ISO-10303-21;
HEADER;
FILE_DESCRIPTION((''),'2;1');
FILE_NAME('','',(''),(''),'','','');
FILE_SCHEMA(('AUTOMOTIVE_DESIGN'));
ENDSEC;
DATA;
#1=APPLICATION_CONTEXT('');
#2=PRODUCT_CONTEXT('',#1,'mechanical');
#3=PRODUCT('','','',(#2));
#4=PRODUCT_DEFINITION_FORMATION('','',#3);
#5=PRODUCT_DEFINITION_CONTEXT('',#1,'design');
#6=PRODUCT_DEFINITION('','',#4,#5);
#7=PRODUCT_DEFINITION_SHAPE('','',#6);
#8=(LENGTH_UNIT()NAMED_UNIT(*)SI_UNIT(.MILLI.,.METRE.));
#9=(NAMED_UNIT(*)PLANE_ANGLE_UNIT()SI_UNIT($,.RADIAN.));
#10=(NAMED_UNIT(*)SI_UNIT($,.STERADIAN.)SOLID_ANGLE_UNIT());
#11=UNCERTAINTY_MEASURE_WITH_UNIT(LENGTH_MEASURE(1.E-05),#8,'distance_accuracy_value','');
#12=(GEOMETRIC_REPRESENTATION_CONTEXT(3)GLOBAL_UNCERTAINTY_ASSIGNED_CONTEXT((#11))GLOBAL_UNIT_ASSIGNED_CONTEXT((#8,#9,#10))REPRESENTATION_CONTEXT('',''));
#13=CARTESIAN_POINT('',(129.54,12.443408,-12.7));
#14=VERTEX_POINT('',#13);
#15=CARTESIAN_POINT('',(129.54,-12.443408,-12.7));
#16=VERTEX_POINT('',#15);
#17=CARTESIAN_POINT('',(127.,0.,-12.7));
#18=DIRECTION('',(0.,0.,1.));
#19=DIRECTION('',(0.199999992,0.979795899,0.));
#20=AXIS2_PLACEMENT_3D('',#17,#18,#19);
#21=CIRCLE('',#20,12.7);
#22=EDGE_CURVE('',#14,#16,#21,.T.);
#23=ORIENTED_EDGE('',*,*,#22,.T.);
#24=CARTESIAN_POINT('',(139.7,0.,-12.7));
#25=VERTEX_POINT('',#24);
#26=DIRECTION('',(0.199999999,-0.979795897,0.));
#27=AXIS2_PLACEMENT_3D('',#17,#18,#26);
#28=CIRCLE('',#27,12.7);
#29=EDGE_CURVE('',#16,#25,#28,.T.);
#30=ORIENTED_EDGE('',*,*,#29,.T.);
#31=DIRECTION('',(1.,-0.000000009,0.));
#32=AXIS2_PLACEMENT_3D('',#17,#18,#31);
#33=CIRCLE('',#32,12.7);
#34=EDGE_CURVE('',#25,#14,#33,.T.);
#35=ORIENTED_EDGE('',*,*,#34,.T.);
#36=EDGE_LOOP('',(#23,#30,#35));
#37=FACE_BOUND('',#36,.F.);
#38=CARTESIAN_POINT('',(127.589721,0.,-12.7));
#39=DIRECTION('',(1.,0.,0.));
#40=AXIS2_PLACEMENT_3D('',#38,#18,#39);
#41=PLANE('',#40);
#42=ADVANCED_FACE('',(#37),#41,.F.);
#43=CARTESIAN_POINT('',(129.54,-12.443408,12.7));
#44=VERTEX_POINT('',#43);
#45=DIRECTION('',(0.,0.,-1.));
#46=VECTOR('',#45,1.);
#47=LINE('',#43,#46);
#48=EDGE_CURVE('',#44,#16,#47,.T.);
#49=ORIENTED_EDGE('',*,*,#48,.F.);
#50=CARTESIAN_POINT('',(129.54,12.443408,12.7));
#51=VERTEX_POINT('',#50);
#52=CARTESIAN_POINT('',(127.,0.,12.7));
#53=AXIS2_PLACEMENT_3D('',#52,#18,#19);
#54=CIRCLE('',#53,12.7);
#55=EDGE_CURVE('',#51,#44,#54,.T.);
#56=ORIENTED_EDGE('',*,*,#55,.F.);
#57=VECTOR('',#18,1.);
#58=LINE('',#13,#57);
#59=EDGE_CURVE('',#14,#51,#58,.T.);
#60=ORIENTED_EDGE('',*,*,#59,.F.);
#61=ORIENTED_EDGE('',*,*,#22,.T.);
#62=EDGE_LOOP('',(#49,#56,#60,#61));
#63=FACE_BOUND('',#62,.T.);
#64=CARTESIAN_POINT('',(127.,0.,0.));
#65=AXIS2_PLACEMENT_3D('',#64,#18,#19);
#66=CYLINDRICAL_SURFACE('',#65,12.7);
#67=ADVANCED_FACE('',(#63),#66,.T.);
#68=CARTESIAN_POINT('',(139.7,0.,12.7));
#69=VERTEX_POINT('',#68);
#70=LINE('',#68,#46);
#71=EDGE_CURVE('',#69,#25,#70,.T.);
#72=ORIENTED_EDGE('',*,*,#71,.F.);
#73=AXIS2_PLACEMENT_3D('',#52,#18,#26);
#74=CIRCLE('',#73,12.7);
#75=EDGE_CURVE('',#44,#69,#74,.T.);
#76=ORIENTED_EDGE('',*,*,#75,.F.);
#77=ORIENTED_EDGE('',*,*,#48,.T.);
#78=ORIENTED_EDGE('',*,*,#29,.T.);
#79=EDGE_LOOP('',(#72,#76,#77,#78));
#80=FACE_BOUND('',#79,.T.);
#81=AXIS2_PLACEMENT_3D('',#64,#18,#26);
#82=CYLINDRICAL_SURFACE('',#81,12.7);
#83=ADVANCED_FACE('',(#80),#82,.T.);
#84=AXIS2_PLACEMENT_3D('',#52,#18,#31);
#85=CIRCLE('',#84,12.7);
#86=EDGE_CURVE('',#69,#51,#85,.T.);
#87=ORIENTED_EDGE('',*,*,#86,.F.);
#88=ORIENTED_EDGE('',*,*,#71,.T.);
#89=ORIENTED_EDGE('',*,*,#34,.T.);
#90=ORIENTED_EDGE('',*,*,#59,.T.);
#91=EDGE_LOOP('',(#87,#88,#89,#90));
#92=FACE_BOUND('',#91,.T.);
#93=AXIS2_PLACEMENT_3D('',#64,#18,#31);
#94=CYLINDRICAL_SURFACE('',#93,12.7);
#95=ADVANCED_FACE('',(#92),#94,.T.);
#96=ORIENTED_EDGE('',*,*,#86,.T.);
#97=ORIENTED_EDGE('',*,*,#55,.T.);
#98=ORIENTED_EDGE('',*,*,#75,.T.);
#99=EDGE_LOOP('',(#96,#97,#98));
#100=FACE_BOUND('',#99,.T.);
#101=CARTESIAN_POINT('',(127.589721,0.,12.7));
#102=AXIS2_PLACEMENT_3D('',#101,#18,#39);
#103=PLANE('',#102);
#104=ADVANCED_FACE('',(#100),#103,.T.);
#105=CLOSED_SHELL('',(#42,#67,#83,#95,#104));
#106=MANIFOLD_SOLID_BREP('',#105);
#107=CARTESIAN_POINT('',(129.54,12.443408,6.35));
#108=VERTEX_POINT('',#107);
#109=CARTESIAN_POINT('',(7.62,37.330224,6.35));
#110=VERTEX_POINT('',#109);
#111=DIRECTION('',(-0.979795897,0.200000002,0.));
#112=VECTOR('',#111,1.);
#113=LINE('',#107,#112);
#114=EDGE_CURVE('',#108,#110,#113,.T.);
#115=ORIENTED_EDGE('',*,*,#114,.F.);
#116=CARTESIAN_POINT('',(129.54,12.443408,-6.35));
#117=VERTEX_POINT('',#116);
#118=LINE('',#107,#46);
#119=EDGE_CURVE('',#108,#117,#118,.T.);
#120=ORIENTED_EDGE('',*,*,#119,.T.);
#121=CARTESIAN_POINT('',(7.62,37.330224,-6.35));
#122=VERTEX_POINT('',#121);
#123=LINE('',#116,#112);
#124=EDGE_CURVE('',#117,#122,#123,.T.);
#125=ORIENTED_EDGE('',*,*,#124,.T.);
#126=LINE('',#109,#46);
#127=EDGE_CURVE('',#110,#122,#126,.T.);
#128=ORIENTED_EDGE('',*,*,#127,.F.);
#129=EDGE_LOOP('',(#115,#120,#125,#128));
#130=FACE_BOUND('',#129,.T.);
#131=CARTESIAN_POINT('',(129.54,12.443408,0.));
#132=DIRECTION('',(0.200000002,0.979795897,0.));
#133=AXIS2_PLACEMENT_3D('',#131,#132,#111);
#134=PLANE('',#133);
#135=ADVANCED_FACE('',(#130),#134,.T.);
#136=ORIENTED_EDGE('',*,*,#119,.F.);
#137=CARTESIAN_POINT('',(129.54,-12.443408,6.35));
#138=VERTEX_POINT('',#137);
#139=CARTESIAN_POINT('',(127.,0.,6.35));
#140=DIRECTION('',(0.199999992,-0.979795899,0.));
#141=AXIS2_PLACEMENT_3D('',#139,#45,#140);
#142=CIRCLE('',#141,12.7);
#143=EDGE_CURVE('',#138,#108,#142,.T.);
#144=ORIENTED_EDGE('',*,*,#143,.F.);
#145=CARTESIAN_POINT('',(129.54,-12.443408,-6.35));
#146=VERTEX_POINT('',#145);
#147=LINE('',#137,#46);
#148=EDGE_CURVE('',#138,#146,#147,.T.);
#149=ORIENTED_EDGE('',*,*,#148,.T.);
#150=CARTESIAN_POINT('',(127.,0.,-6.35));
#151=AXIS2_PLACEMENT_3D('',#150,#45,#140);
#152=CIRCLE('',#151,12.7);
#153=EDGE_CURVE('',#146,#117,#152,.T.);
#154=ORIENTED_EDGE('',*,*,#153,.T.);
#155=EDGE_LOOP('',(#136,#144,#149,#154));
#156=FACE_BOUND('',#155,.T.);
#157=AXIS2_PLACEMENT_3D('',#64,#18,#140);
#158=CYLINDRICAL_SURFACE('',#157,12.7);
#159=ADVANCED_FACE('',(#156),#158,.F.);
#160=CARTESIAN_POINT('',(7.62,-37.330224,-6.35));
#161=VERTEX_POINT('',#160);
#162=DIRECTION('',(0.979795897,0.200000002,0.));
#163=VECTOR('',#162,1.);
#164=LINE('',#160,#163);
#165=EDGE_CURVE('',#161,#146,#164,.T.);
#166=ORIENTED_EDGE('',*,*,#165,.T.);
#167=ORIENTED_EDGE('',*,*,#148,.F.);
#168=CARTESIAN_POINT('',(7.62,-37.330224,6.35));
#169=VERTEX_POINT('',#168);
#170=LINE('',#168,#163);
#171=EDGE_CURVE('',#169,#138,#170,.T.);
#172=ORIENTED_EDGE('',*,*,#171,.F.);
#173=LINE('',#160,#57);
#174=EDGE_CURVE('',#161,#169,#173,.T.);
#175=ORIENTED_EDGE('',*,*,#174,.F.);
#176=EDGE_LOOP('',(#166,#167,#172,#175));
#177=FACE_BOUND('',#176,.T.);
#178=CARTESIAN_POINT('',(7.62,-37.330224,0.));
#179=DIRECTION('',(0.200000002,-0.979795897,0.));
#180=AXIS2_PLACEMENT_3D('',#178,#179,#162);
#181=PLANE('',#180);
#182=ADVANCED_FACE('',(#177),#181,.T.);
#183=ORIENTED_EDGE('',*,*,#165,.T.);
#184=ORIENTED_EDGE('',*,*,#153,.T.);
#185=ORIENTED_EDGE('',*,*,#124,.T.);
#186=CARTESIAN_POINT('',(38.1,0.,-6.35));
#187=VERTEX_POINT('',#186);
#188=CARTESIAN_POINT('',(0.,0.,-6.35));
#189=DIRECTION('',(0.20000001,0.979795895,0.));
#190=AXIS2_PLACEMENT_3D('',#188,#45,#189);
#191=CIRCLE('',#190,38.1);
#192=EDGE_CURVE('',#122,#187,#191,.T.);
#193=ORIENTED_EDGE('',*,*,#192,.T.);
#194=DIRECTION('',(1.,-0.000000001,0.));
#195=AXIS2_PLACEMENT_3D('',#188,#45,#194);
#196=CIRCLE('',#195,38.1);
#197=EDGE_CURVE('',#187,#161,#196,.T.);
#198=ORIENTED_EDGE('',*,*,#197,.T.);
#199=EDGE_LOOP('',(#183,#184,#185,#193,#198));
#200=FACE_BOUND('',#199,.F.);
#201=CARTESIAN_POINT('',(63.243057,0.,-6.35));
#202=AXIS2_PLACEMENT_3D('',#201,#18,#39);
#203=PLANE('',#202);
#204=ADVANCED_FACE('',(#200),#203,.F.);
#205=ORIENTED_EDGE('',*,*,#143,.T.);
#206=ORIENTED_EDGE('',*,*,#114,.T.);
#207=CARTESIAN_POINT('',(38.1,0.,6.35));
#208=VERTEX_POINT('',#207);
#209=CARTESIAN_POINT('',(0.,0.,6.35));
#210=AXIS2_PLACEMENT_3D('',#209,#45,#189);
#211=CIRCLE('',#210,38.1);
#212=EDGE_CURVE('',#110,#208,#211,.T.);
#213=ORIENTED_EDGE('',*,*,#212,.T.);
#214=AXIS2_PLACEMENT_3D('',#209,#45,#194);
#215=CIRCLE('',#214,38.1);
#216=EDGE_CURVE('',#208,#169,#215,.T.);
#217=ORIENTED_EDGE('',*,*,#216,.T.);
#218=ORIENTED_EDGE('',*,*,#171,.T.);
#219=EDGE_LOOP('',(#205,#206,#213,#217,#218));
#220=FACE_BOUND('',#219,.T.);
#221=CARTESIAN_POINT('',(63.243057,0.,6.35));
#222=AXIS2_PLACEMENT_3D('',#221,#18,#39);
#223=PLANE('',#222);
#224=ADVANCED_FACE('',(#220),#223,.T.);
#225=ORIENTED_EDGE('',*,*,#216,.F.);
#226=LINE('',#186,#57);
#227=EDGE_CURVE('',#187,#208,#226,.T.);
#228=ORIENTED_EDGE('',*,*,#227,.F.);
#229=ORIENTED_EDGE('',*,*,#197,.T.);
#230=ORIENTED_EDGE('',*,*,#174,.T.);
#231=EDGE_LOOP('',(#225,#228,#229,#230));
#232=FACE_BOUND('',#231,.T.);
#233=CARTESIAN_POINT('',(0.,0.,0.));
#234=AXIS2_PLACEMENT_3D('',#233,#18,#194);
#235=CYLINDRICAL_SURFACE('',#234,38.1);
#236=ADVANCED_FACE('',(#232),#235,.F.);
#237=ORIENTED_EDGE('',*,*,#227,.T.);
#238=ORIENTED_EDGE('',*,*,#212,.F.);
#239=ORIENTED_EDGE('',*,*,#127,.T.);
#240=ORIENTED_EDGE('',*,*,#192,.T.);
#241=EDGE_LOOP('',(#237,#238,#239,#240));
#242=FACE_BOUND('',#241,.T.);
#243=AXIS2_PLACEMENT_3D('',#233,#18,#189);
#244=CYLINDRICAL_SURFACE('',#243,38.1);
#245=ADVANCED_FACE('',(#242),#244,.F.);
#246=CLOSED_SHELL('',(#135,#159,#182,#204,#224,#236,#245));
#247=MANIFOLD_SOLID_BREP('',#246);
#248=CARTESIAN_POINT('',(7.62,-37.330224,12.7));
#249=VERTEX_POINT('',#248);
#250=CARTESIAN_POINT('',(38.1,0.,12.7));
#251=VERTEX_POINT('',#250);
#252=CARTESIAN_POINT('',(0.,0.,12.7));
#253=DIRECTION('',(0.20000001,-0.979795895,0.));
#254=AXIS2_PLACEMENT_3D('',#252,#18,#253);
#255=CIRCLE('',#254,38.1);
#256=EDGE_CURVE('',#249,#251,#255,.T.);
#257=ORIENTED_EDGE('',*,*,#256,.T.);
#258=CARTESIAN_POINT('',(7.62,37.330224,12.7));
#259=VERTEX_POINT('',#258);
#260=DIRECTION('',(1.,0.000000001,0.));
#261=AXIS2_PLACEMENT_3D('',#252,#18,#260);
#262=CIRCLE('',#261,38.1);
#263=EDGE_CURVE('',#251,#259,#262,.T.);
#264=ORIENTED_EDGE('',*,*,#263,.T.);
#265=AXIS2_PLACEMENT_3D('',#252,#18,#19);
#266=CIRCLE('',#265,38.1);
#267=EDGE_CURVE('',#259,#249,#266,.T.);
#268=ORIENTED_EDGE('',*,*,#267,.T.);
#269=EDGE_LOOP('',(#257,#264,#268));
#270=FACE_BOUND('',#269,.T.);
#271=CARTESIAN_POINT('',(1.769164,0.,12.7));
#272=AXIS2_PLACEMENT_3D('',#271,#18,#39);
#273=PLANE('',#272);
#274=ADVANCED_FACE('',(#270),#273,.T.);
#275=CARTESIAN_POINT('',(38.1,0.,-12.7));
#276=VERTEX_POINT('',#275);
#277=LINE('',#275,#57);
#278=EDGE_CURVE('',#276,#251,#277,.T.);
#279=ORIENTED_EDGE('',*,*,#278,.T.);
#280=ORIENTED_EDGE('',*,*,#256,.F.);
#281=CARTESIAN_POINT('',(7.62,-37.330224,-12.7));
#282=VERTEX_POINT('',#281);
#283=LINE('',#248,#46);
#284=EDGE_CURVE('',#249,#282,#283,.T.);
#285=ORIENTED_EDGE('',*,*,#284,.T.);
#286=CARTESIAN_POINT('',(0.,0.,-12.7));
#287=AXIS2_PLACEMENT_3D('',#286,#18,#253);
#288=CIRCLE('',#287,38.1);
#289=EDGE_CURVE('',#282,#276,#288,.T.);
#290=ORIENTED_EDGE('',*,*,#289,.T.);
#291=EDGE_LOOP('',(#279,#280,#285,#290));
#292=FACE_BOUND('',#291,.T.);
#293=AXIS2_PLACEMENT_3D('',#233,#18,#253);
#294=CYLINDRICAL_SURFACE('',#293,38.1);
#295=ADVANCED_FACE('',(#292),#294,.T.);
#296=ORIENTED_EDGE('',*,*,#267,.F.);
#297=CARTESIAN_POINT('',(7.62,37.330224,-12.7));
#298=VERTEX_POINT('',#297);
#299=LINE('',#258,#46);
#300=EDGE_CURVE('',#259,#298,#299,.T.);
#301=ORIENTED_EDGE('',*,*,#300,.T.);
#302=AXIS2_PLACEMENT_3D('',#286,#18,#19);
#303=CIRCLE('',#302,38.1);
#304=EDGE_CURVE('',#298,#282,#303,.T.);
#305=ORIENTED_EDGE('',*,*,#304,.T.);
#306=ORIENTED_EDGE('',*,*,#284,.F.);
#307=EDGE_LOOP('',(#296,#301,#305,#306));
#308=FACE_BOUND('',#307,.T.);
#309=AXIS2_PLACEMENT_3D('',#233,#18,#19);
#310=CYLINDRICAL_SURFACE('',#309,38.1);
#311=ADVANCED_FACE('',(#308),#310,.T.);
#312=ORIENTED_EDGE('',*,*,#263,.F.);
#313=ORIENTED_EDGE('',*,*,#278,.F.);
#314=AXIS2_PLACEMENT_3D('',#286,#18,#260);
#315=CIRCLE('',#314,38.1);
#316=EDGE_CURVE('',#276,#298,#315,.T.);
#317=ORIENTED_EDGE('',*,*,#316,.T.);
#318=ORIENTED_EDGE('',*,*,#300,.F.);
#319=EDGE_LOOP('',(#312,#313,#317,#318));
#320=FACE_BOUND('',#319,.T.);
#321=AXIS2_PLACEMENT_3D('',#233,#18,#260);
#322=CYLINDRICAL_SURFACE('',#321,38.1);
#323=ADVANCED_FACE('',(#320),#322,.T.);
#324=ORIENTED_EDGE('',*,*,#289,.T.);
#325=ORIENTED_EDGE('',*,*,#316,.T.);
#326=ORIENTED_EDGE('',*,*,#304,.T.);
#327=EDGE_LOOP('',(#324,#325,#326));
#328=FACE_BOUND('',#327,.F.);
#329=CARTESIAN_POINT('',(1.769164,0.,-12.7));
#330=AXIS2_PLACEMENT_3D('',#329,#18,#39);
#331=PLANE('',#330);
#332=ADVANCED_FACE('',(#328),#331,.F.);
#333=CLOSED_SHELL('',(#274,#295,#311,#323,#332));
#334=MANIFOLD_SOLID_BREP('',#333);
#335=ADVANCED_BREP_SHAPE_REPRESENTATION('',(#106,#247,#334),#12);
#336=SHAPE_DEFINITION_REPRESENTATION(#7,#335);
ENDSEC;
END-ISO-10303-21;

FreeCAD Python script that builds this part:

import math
import FreeCAD as App
import Part
import Sketcher
from FreeCAD import Vector
Q = App.Units.Quantity

doc = App.newDocument("Part")
body = doc.addObject("PartDesign::Body", "Body")

sketch1 = body.newObject("Sketcher::SketchObject", "Sketch")
sketch1.AttachmentSupport = (doc.getObject("XY_Plane"), [""])
sketch1.MapMode = "FlatFace"
sketch1.addGeometry(Part.ArcOfCircle(Part.Circle(Vector(0, 0, 0), Vector(0, 0, 1), 38.1), math.radians(-78.46304), math.radians(0)), False)
sketch1.addGeometry(Part.ArcOfCircle(Part.Circle(Vector(0, 0, 0), Vector(0, 0, 1), 38.1), math.radians(0), math.radians(78.46304)), False)
sketch1.addGeometry(Part.ArcOfCircle(Part.Circle(Vector(0, 0, 0), Vector(0, 0, 1), 38.1), math.radians(78.463041), math.radians(281.536959)), False)
sketch1.addConstraint(Sketcher.Constraint("Tangent", 0, 2, 1, 1))
sketch1.addConstraint(Sketcher.Constraint("Tangent", 1, 2, 2, 1))
sketch1.addConstraint(Sketcher.Constraint("Tangent", 2, 2, 0, 1))
sketch1.addConstraint(Sketcher.Constraint("Coincident", 0, 3, -1, 1))
sketch1.addConstraint(Sketcher.Constraint("PointOnObject", 0, 2, -1))
sketch1.addConstraint(Sketcher.Constraint("Vertical", 1, 2, 2, 2))
sketch1.addConstraint(Sketcher.Constraint("Radius", 0, Q("1.5 in")))
sketch1.addConstraint(Sketcher.Constraint("DistanceX", -1, 1, 1, 2, Q("0.3 in")))
pad1 = body.newObject("PartDesign::Pad", "Pad")
pad1.Profile = sketch1
pad1.Length = Q("1 in")
pad1.Midplane = True
body2 = doc.addObject("PartDesign::Body", "Body001")

sketch2 = body2.newObject("Sketcher::SketchObject", "Sketch001")
sketch2.AttachmentSupport = (doc.getObject("XY_Plane001"), [""])
sketch2.MapMode = "FlatFace"
sketch2.addGeometry(Part.ArcOfCircle(Part.Circle(Vector(127, 0, 0), Vector(0, 0, 1), 12.7), math.radians(-0.000001), math.radians(78.463041)), False)
sketch2.addGeometry(Part.ArcOfCircle(Part.Circle(Vector(127, 0, 0), Vector(0, 0, 1), 12.7), math.radians(78.463041), math.radians(281.536959)), False)
sketch2.addGeometry(Part.ArcOfCircle(Part.Circle(Vector(127, 0, 0), Vector(0, 0, 1), 12.7), math.radians(-78.463041), math.radians(0.000001)), False)
sketch2.addConstraint(Sketcher.Constraint("Tangent", 0, 2, 1, 1))
sketch2.addConstraint(Sketcher.Constraint("Tangent", 1, 2, 2, 1))
sketch2.addConstraint(Sketcher.Constraint("Tangent", 2, 2, 0, 1))
sketch2.addConstraint(Sketcher.Constraint("Symmetric", 0, 2, 1, 2, -1))
sketch2.addConstraint(Sketcher.Constraint("PointOnObject", 2, 2, -1))
sketch2.addConstraint(Sketcher.Constraint("Radius", 0, Q("0.5 in")))
sketch2.addConstraint(Sketcher.Constraint("DistanceX", -1, 1, 0, 3, Q("5 in")))
sketch2.addConstraint(Sketcher.Constraint("DistanceX", -1, 1, 0, 2, Q("5.1 in")))
pad2 = body2.newObject("PartDesign::Pad", "Pad001")
pad2.Profile = sketch2
pad2.Length = Q("1 in")
pad2.Midplane = True
body3 = doc.addObject("PartDesign::Body", "Body002")

sketch3 = body3.newObject("Sketcher::SketchObject", "Sketch002")
sketch3.AttachmentSupport = (doc.getObject("XY_Plane002"), [""])
sketch3.MapMode = "FlatFace"
sketch3.addGeometry(Part.ArcOfCircle(Part.Circle(Vector(0, 0, 0), Vector(0, 0, 1), 38.1), math.radians(0), math.radians(78.46304)), False)
sketch3.addGeometry(Part.ArcOfCircle(Part.Circle(Vector(0, 0, 0), Vector(0, 0, 1), 38.1), math.radians(-78.46304), math.radians(0)), False)
sketch3.addGeometry(Part.LineSegment(Vector(7.62, -37.330224, 0), Vector(129.54, -12.443408, 0)), False)
sketch3.addGeometry(Part.ArcOfCircle(Part.Circle(Vector(127, 0, 0), Vector(0, 0, 1), 12.7), math.radians(78.463041), math.radians(281.536959)), False)
sketch3.addGeometry(Part.LineSegment(Vector(129.54, 12.443408, 0), Vector(7.62, 37.330224, 0)), False)
sketch3.addConstraint(Sketcher.Constraint("Tangent", 0, 1, 1, 2))
sketch3.addConstraint(Sketcher.Constraint("Tangent", 1, 1, 2, 1))
sketch3.addConstraint(Sketcher.Constraint("Tangent", 2, 2, 3, 2))
sketch3.addConstraint(Sketcher.Constraint("Tangent", 3, 1, 4, 1))
sketch3.addConstraint(Sketcher.Constraint("Tangent", 4, 2, 0, 2))
sketch3.addConstraint(Sketcher.Constraint("Coincident", 0, 3, -1, 1))
sketch3.addConstraint(Sketcher.Constraint("Equal", 0, 1))
sketch3.addConstraint(Sketcher.Constraint("PointOnObject", 3, 3, -1))
sketch3.addConstraint(Sketcher.Constraint("PointOnObject", 0, 1, -1))
sketch3.addConstraint(Sketcher.Constraint("Radius", 0, Q("1.5 in")))
sketch3.addConstraint(Sketcher.Constraint("Radius", 3, Q("0.5 in")))
sketch3.addConstraint(Sketcher.Constraint("DistanceX", -1, 1, 3, 3, Q("5 in")))
pad3 = body3.newObject("PartDesign::Pad", "Pad002")
pad3.Profile = sketch3
pad3.Length = Q("0.5 in")
pad3.Midplane = True

doc.recompute()
